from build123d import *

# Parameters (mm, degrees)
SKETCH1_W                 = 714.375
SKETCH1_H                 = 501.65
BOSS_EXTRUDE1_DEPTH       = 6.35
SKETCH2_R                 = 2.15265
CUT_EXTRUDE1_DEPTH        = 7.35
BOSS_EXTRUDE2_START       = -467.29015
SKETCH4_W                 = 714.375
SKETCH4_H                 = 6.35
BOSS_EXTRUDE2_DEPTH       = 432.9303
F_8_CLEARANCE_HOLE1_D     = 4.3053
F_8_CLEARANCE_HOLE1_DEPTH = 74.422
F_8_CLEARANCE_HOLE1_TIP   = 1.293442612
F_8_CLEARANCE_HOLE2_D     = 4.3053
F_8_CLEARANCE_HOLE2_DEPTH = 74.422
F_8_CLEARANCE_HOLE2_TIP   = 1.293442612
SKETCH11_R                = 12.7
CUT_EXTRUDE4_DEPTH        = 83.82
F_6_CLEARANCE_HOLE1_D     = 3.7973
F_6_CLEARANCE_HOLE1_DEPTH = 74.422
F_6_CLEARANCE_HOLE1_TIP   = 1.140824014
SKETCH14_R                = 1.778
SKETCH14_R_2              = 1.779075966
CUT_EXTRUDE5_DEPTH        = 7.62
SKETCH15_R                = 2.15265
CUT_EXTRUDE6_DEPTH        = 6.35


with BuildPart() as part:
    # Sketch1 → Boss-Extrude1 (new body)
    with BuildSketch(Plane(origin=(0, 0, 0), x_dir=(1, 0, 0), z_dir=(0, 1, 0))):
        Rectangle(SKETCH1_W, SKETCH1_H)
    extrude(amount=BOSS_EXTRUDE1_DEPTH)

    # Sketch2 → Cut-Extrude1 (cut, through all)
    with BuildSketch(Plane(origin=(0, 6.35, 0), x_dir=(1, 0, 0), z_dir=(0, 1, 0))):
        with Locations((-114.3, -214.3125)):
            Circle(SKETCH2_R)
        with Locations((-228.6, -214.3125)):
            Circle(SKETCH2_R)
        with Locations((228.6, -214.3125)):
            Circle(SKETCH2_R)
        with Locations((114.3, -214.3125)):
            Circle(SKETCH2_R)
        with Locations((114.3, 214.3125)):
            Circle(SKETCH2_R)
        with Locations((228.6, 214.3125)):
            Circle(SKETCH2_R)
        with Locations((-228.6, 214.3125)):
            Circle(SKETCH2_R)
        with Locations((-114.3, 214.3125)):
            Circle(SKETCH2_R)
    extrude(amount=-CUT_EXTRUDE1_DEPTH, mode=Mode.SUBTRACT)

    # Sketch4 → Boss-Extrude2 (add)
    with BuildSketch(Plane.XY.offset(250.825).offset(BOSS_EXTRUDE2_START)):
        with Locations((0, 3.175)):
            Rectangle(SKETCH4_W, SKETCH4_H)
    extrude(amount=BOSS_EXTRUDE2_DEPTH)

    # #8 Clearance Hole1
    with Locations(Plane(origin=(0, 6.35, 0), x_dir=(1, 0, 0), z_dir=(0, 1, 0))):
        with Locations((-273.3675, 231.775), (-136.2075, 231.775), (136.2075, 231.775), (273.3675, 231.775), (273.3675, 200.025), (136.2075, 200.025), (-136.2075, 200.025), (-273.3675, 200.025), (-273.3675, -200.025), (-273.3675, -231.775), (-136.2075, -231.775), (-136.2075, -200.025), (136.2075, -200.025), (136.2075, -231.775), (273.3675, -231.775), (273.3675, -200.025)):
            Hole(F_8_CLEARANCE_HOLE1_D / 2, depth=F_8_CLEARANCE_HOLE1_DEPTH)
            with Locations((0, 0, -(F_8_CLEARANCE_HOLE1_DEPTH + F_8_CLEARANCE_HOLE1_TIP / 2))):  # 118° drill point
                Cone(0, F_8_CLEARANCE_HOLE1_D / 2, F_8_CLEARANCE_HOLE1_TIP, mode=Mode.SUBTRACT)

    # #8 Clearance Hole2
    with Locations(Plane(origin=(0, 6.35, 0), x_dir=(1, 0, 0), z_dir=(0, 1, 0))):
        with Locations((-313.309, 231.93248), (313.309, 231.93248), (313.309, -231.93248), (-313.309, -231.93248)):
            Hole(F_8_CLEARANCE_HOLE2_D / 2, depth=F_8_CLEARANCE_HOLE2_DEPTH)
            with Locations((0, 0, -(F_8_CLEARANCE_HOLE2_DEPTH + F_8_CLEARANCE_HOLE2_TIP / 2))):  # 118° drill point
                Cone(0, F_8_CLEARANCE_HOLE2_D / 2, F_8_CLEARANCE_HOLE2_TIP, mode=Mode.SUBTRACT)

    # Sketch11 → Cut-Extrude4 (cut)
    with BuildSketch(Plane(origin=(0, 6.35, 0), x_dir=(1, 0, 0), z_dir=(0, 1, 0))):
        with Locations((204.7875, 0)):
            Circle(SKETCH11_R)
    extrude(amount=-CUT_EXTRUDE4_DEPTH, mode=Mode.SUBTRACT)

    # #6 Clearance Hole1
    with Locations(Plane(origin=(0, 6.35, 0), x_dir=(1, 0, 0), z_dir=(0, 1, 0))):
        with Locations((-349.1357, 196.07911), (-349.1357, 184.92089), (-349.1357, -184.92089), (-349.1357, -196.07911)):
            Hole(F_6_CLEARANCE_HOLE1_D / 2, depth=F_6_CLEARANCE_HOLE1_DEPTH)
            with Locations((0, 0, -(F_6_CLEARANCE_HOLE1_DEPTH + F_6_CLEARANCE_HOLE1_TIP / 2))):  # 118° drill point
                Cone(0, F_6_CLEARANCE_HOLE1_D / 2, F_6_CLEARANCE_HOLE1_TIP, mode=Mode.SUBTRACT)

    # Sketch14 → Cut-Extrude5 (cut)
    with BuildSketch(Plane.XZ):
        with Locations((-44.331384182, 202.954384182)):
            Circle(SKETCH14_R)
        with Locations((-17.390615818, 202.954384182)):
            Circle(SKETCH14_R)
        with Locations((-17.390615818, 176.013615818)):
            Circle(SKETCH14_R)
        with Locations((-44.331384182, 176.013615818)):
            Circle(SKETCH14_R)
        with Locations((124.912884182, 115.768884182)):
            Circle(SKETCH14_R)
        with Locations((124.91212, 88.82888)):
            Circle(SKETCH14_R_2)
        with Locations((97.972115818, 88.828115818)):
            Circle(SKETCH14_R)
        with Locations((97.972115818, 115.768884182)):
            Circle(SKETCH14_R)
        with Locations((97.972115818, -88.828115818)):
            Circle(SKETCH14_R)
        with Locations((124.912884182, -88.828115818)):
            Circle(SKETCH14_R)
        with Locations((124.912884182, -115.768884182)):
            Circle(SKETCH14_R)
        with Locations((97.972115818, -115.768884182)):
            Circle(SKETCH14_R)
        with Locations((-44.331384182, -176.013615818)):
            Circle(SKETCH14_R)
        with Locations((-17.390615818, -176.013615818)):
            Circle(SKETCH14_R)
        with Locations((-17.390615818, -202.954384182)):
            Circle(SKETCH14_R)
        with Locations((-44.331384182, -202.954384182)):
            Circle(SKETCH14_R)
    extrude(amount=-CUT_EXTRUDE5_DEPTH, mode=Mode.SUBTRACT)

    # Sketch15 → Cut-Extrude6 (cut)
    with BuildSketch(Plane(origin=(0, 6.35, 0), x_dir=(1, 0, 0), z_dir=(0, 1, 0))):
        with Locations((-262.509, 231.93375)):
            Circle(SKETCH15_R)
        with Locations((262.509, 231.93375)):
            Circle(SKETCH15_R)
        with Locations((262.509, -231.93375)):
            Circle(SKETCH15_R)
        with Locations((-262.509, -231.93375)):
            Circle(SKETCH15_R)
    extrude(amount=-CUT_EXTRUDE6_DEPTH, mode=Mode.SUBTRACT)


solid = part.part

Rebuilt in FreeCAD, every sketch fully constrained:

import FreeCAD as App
import Part
import Sketcher
Q = App.Units.Quantity


def add_polygon(sketch, points):
    """Adds a closed chain of lines whose ends are joined by coincident constraints."""
    first, n = sketch.GeometryCount, len(points)
    for a, b in zip(points, points[1:] + points[:1]):
        sketch.addGeometry(Part.LineSegment(App.Vector(*a, 0), App.Vector(*b, 0)), False)
    for i in range(n):
        sketch.addConstraint(Sketcher.Constraint("Coincident", first + i, 2, first + (i + 1) % n, 1))

doc = App.newDocument("Part")
params = doc.addObject("Spreadsheet::Sheet", "Params")
for row, (alias, value) in enumerate([
    ("sketch1_height", "19.75 in"),
    ("sketch1_width", "28.125 in"),
    ("pad1_length", "0.25 in"),
    ("sketch3_height", "0.25 in"),
    ("sketch3_width", "28.125 in"),
    ("pad2_length", "17.0445 in"),
    ("hole_diameter", "0.1695 in"),
    ("hole_depth", "2.93 in"),
    ("hole2_diameter", "0.1695 in"),
    ("hole2_depth", "2.93 in"),
    ("sketch6_diameter", "1 in"),
    ("pocket2_length", "3.3 in"),
    ("hole3_diameter", "0.1495 in"),
    ("hole3_depth", "2.93 in"),
    ("sketch8_diameter", "0.14 in"),
    ("pocket3_length", "0.3 in"),
    ("pocket4_length", "0.25 in"),
], start=1):
    params.set(f"A{row}", alias)
    params.set(f"B{row}", "=" + value)
    params.setAlias(f"B{row}", alias)

body = doc.addObject("PartDesign::Body", "Body")

sketch1 = doc.addObject("Sketcher::SketchObject", "Sketch")
body.addObject(sketch1)
sketch1.AttachmentSupport = (doc.XZ_Plane, [""])
sketch1.MapMode = "FlatFace"
add_polygon(sketch1, [(-357, -251), (-357, 251), (357, 251), (357, -251)])
sketch1.addConstraint([
    Sketcher.Constraint("Vertical", 0),
    Sketcher.Constraint("Horizontal", 1),
    Sketcher.Constraint("Vertical", 2),
    Sketcher.Constraint("Horizontal", 3),
    Sketcher.Constraint("Symmetric", 0, 2, 2, 2, -1, 1),
    Sketcher.Constraint("DistanceY", 0, 1, 0, 2, Q("19.75 in")),
    Sketcher.Constraint("DistanceX", 1, 1, 1, 2, Q("28.125 in")),
])
sketch1.setExpression("Constraints[9]", "Params.sketch1_height")
sketch1.setExpression("Constraints[10]", "Params.sketch1_width")
pad1 = doc.addObject("PartDesign::Pad", "Pad")
body.addObject(pad1)
pad1.Profile = sketch1
pad1.setExpression("Length", "Params.pad1_length")
pad1.Reversed = True

sketch2 = doc.addObject("Sketcher::SketchObject", "Sketch001")
body.addObject(sketch2)
sketch2.AttachmentSupport = (doc.XZ_Plane, [""])
sketch2.MapMode = "FlatFace"
sketch2.AttachmentOffset = App.Placement(App.Vector(0, 0, -0.25 * 25.4), App.Rotation())
sketch2.addGeometry([
    Part.Circle(App.Vector(-114.3, 214.3, 0), App.Vector(0, 0, 1), 2.2),
    Part.Circle(App.Vector(-228.6, 214.3, 0), App.Vector(0, 0, 1), 2.2),
    Part.Circle(App.Vector(228.6, 214.3, 0), App.Vector(0, 0, 1), 2.2),
    Part.Circle(App.Vector(114.3, 214.3, 0), App.Vector(0, 0, 1), 2.2),
    Part.Circle(App.Vector(114.3, -214.3, 0), App.Vector(0, 0, 1), 2.2),
    Part.Circle(App.Vector(228.6, -214.3, 0), App.Vector(0, 0, 1), 2.2),
    Part.Circle(App.Vector(-228.6, -214.3, 0), App.Vector(0, 0, 1), 2.2),
    Part.Circle(App.Vector(-114.3, -214.3, 0), App.Vector(0, 0, 1), 2.2),
], False)
sketch2.addConstraint([
    Sketcher.Constraint("Equal", 0, 1),
    Sketcher.Constraint("Equal", 1, 2),
    Sketcher.Constraint("Equal", 2, 3),
    Sketcher.Constraint("Equal", 3, 4),
    Sketcher.Constraint("Equal", 4, 5),
    Sketcher.Constraint("Equal", 5, 6),
    Sketcher.Constraint("Equal", 6, 7),
    Sketcher.Constraint("Symmetric", 0, 3, 4, 3, -1, 1),
    Sketcher.Constraint("Symmetric", 1, 3, 5, 3, -1, 1),
    Sketcher.Constraint("Symmetric", 2, 3, 6, 3, -1, 1),
    Sketcher.Constraint("Symmetric", 3, 3, 7, 3, -1, 1),
    Sketcher.Constraint("Symmetric", 1, 3, 2, 3, -2),
    Sketcher.Constraint("Symmetric", 0, 3, 3, 3, -2),
    Sketcher.Constraint("Horizontal", 0, 3, 1, 3),
    Sketcher.Constraint("DistanceX", 1, 3, -1, 1, Q("9 in")),
    Sketcher.Constraint("DistanceX", 0, 3, 3, 3, Q("9 in")),
    Sketcher.Constraint("Diameter", 0, Q("0.1695 in")),
    Sketcher.Constraint("DistanceY", -1, 1, 0, 3, Q("8.4375 in")),
])
pocket1 = doc.addObject("PartDesign::Pocket", "Pocket")
body.addObject(pocket1)
pocket1.Profile = sketch2
pocket1.Type = "ThroughAll"
pocket1.Reversed = True

sketch3 = doc.addObject("Sketcher::SketchObject", "Sketch002")
body.addObject(sketch3)
sketch3.AttachmentSupport = (doc.XY_Plane, [""])
sketch3.MapMode = "FlatFace"
sketch3.AttachmentOffset = App.Placement(App.Vector(0, 0, -216.46515), App.Rotation())
add_polygon(sketch3, [(-357, 6), (-357, 0), (357, 0), (357, 6)])
sketch3.addConstraint([
    Sketcher.Constraint("Vertical", 0),
    Sketcher.Constraint("Horizontal", 1),
    Sketcher.Constraint("Vertical", 2),
    Sketcher.Constraint("Horizontal", 3),
    Sketcher.Constraint("Symmetric", 0, 2, 1, 2, -1, 1),
    Sketcher.Constraint("DistanceY", 0, 2, 0, 1, Q("0.25 in")),
    Sketcher.Constraint("DistanceX", 1, 1, 1, 2, Q("28.125 in")),
])
sketch3.setExpression("Constraints[9]", "Params.sketch3_height")
sketch3.setExpression("Constraints[10]", "Params.sketch3_width")
pad2 = doc.addObject("PartDesign::Pad", "Pad001")
body.addObject(pad2)
pad2.Profile = sketch3
pad2.setExpression("Length", "Params.pad2_length")

sketch4 = doc.addObject("Sketcher::SketchObject", "Sketch003")
body.addObject(sketch4)
sketch4.AttachmentSupport = (doc.XZ_Plane, [""])
sketch4.MapMode = "FlatFace"
sketch4.AttachmentOffset = App.Placement(App.Vector(0, 0, -0.25 * 25.4), App.Rotation())
sketch4.addGeometry([
    Part.Circle(App.Vector(-273.4, -231.8, 0), App.Vector(0, 0, 1), 2.2),
    Part.Circle(App.Vector(-136.2, -231.8, 0), App.Vector(0, 0, 1), 2.2),
    Part.Circle(App.Vector(136.2, -231.8, 0), App.Vector(0, 0, 1), 2.2),
    Part.Circle(App.Vector(273.4, -231.8, 0), App.Vector(0, 0, 1), 2.2),
    Part.Circle(App.Vector(273.4, -200, 0), App.Vector(0, 0, 1), 2.2),
    Part.Circle(App.Vector(136.2, -200, 0), App.Vector(0, 0, 1), 2.2),
    Part.Circle(App.Vector(-136.2, -200, 0), App.Vector(0, 0, 1), 2.2),
    Part.Circle(App.Vector(-273.4, -200, 0), App.Vector(0, 0, 1), 2.2),
    Part.Circle(App.Vector(-273.4, 200, 0), App.Vector(0, 0, 1), 2.2),
    Part.Circle(App.Vector(-273.4, 231.8, 0), App.Vector(0, 0, 1), 2.2),
    Part.Circle(App.Vector(-136.2, 231.8, 0), App.Vector(0, 0, 1), 2.2),
    Part.Circle(App.Vector(-136.2, 200, 0), App.Vector(0, 0, 1), 2.2),
    Part.Circle(App.Vector(136.2, 200, 0), App.Vector(0, 0, 1), 2.2),
    Part.Circle(App.Vector(136.2, 231.8, 0), App.Vector(0, 0, 1), 2.2),
    Part.Circle(App.Vector(273.4, 231.8, 0), App.Vector(0, 0, 1), 2.2),
    Part.Circle(App.Vector(273.4, 200, 0), App.Vector(0, 0, 1), 2.2),
], False)
sketch4.addConstraint([
    Sketcher.Constraint("Equal", 0, 1),
    Sketcher.Constraint("Equal", 1, 2),
    Sketcher.Constraint("Equal", 2, 3),
    Sketcher.Constraint("Equal", 3, 4),
    Sketcher.Constraint("Equal", 4, 5),
    Sketcher.Constraint("Equal", 5, 6),
    Sketcher.Constraint("Equal", 6, 7),
    Sketcher.Constraint("Equal", 7, 8),
    Sketcher.Constraint("Equal", 8, 9),
    Sketcher.Constraint("Equal", 9, 10),
    Sketcher.Constraint("Equal", 10, 11),
    Sketcher.Constraint("Equal", 11, 12),
    Sketcher.Constraint("Equal", 12, 13),
    Sketcher.Constraint("Equal", 13, 14),
    Sketcher.Constraint("Equal", 14, 15),
    Sketcher.Constraint("Symmetric", 4, 3, 8, 3, -1, 1),
    Sketcher.Constraint("Symmetric", 3, 3, 9, 3, -1, 1),
    Sketcher.Constraint("Symmetric", 2, 3, 10, 3, -1, 1),
    Sketcher.Constraint("Symmetric", 5, 3, 11, 3, -1, 1),
    Sketcher.Constraint("Symmetric", 6, 3, 12, 3, -1, 1),
    Sketcher.Constraint("Symmetric", 1, 3, 13, 3, -1, 1),
    Sketcher.Constraint("Symmetric", 0, 3, 14, 3, -1, 1),
    Sketcher.Constraint("Symmetric", 7, 3, 15, 3, -1, 1),
    Sketcher.Constraint("Symmetric", 1, 3, 2, 3, -2),
    Sketcher.Constraint("Symmetric", 0, 3, 3, 3, -2),
    Sketcher.Constraint("Symmetric", 5, 3, 6, 3, -2),
    Sketcher.Constraint("Symmetric", 4, 3, 7, 3, -2),
    Sketcher.Constraint("Horizontal", 0, 3, 1, 3),
    Sketcher.Constraint("Horizontal", 4, 3, 5, 3),
    Sketcher.Constraint("Vertical", 3, 3, 4, 3),
    Sketcher.Constraint("Vertical", 2, 3, 5, 3),
    Sketcher.Constraint("DistanceY", 0, 3, 8, 3, Q("17 in")),
    Sketcher.Constraint("Diameter", 0, Q("0.1695 in")),
    Sketcher.Constraint("DistanceX", 0, 3, 1, 3, Q("5.4 in")),
    Sketcher.Constraint("DistanceY", 3, 3, 4, 3, Q("1.25 in")),
    Sketcher.Constraint("DistanceX", 1, 3, 2, 3, Q("10.725 in")),
])
doc.recompute()
hole = doc.addObject("PartDesign::Hole", "Hole")
body.addObject(hole)
hole.Profile = sketch4
hole.ThreadType = "None"
hole.setExpression("Diameter", "Params.hole_diameter")
hole.DepthType = "Dimension"
hole.setExpression("Depth", "Params.hole_depth")
hole.DrillPoint = "Angled"
hole.DrillPointAngle = 118
hole.Reversed = True

sketch5 = doc.addObject("Sketcher::SketchObject", "Sketch004")
body.addObject(sketch5)
sketch5.AttachmentSupport = (doc.XZ_Plane, [""])
sketch5.MapMode = "FlatFace"
sketch5.AttachmentOffset = App.Placement(App.Vector(0, 0, -0.25 * 25.4), App.Rotation())
sketch5.addGeometry([
    Part.Circle(App.Vector(-313.3, -231.9, 0), App.Vector(0, 0, 1), 2.2),
    Part.Circle(App.Vector(313.3, -231.9, 0), App.Vector(0, 0, 1), 2.2),
    Part.Circle(App.Vector(313.3, 231.9, 0), App.Vector(0, 0, 1), 2.2),
    Part.Circle(App.Vector(-313.3, 231.9, 0), App.Vector(0, 0, 1), 2.2),
], False)
sketch5.addConstraint([
    Sketcher.Constraint("Equal", 0, 1),
    Sketcher.Constraint("Equal", 1, 2),
    Sketcher.Constraint("Equal", 2, 3),
    Sketcher.Constraint("Symmetric", 0, 3, 2, 3, -1, 1),
    Sketcher.Constraint("Symmetric", 1, 3, 3, 3, -1, 1),
    Sketcher.Constraint("Symmetric", 0, 3, 1, 3, -2),
    Sketcher.Constraint("Diameter", 0, Q("0.1695 in")),
    Sketcher.Constraint("DistanceX", 0, 3, 1, 3, Q("24.67 in")),
    Sketcher.Constraint("DistanceY", 0, 3, -1, 1, Q("9.1312 in")),
])
doc.recompute()
hole2 = doc.addObject("PartDesign::Hole", "Hole001")
body.addObject(hole2)
hole2.Profile = sketch5
hole2.ThreadType = "None"
hole2.setExpression("Diameter", "Params.hole2_diameter")
hole2.DepthType = "Dimension"
hole2.setExpression("Depth", "Params.hole2_depth")
hole2.DrillPoint = "Angled"
hole2.DrillPointAngle = 118
hole2.Reversed = True

sketch6 = doc.addObject("Sketcher::SketchObject", "Sketch005")
body.addObject(sketch6)
sketch6.AttachmentSupport = (doc.XZ_Plane, [""])
sketch6.MapMode = "FlatFace"
sketch6.AttachmentOffset = App.Placement(App.Vector(0, 0, -0.25 * 25.4), App.Rotation())
sketch6.addGeometry(Part.Circle(App.Vector(205, 0, 0), App.Vector(0, 0, 1), 13), False)
sketch6.addConstraint([
    Sketcher.Constraint("PointOnObject", 0, 3, -1),
    Sketcher.Constraint("Diameter", 0, Q("1 in")),
    Sketcher.Constraint("DistanceX", -1, 1, 0, 3, Q("8.0625 in")),
])
sketch6.setExpression("Constraints[1]", "Params.sketch6_diameter")
pocket2 = doc.addObject("PartDesign::Pocket", "Pocket001")
body.addObject(pocket2)
pocket2.Profile = sketch6
pocket2.setExpression("Length", "Params.pocket2_length")
pocket2.Reversed = True

sketch7 = doc.addObject("Sketcher::SketchObject", "Sketch006")
body.addObject(sketch7)
sketch7.AttachmentSupport = (doc.XZ_Plane, [""])
sketch7.MapMode = "FlatFace"
sketch7.AttachmentOffset = App.Placement(App.Vector(0, 0, -0.25 * 25.4), App.Rotation())
sketch7.addGeometry([
    Part.Circle(App.Vector(-349.1, -196.1, 0), App.Vector(0, 0, 1), 1.9),
    Part.Circle(App.Vector(-349.1, -184.9, 0), App.Vector(0, 0, 1), 1.9),
    Part.Circle(App.Vector(-349.1, 184.9, 0), App.Vector(0, 0, 1), 1.9),
    Part.Circle(App.Vector(-349.1, 196.1, 0), App.Vector(0, 0, 1), 1.9),
], False)
sketch7.addConstraint([
    Sketcher.Constraint("Equal", 0, 1),
    Sketcher.Constraint("Equal", 1, 2),
    Sketcher.Constraint("Equal", 2, 3),
    Sketcher.Constraint("Symmetric", 1, 3, 2, 3, -1),
    Sketcher.Constraint("Symmetric", 0, 3, 3, 3, -1),
    Sketcher.Constraint("Vertical", 0, 3, 1, 3),
    Sketcher.Constraint("DistanceY", 0, 3, 2, 3, Q("15 in")),
    Sketcher.Constraint("Diameter", 0, Q("0.1495 in")),
    Sketcher.Constraint("DistanceX", 0, 3, -1, 1, Q("13.7455 in")),
    Sketcher.Constraint("DistanceY", 0, 3, 1, 3, Q("0.4393 in")),
])
doc.recompute()
hole3 = doc.addObject("PartDesign::Hole", "Hole002")
body.addObject(hole3)
hole3.Profile = sketch7
hole3.ThreadType = "None"
hole3.setExpression("Diameter", "Params.hole3_diameter")
hole3.DepthType = "Dimension"
hole3.setExpression("Depth", "Params.hole3_depth")
hole3.DrillPoint = "Angled"
hole3.DrillPointAngle = 118
hole3.Reversed = True

sketch8 = doc.addObject("Sketcher::SketchObject", "Sketch007")
body.addObject(sketch8)
sketch8.AttachmentSupport = (doc.XZ_Plane, [""])
sketch8.MapMode = "FlatFace"
sketch8.addGeometry([
    Part.Circle(App.Vector(-44.3, 203, 0), App.Vector(0, 0, 1), 1.8),
    Part.Circle(App.Vector(-17.4, 203, 0), App.Vector(0, 0, 1), 1.8),
    Part.Circle(App.Vector(-17.4, 176, 0), App.Vector(0, 0, 1), 1.8),
    Part.Circle(App.Vector(-44.3, 176, 0), App.Vector(0, 0, 1), 1.8),
    Part.Circle(App.Vector(124.9, 115.8, 0), App.Vector(0, 0, 1), 1.8),
    Part.Circle(App.Vector(124.9, 88.8, 0), App.Vector(0, 0, 1), 1.8),
    Part.Circle(App.Vector(98, 88.8, 0), App.Vector(0, 0, 1), 1.8),
    Part.Circle(App.Vector(98, 115.8, 0), App.Vector(0, 0, 1), 1.8),
    Part.Circle(App.Vector(98, -88.8, 0), App.Vector(0, 0, 1), 1.8),
    Part.Circle(App.Vector(124.9, -88.8, 0), App.Vector(0, 0, 1), 1.8),
    Part.Circle(App.Vector(124.9, -115.8, 0), App.Vector(0, 0, 1), 1.8),
    Part.Circle(App.Vector(98, -115.8, 0), App.Vector(0, 0, 1), 1.8),
    Part.Circle(App.Vector(-44.3, -176, 0), App.Vector(0, 0, 1), 1.8),
    Part.Circle(App.Vector(-17.4, -176, 0), App.Vector(0, 0, 1), 1.8),
    Part.Circle(App.Vector(-17.4, -203, 0), App.Vector(0, 0, 1), 1.8),
    Part.Circle(App.Vector(-44.3, -203, 0), App.Vector(0, 0, 1), 1.8),
], False)
sketch8.addConstraint([
    Sketcher.Constraint("Equal", 0, 1),
    Sketcher.Constraint("Equal", 1, 2),
    Sketcher.Constraint("Equal", 2, 3),
    Sketcher.Constraint("Equal", 3, 4),
    Sketcher.Constraint("Equal", 4, 6),
    Sketcher.Constraint("Equal", 6, 7),
    Sketcher.Constraint("Equal", 7, 8),
    Sketcher.Constraint("Equal", 8, 9),
    Sketcher.Constraint("Equal", 9, 10),
    Sketcher.Constraint("Equal", 10, 11),
    Sketcher.Constraint("Equal", 11, 12),
    Sketcher.Constraint("Equal", 12, 13),
    Sketcher.Constraint("Equal", 13, 14),
    Sketcher.Constraint("Equal", 14, 15),
    Sketcher.Constraint("Symmetric", 6, 3, 8, 3, -1),
    Sketcher.Constraint("Symmetric", 4, 3, 10, 3, -1),
    Sketcher.Constraint("Symmetric", 7, 3, 11, 3, -1),
    Sketcher.Constraint("Symmetric", 3, 3, 12, 3, -1),
    Sketcher.Constraint("Symmetric", 2, 3, 13, 3, -1),
    Sketcher.Constraint("Symmetric", 1, 3, 14, 3, -1),
    Sketcher.Constraint("Symmetric", 0, 3, 15, 3, -1),
    Sketcher.Constraint("Horizontal", 0, 3, 1, 3),
    Sketcher.Constraint("Horizontal", 2, 3, 3, 3),
    Sketcher.Constraint("Horizontal", 4, 3, 7, 3),
    Sketcher.Constraint("Horizontal", 8, 3, 9, 3),
    Sketcher.Constraint("Vertical", 1, 3, 2, 3),
    Sketcher.Constraint("Vertical", 0, 3, 3, 3),
    Sketcher.Constraint("Vertical", 6, 3, 7, 3),
    Sketcher.Constraint("Vertical", 4, 3, 9, 3),
    Sketcher.Constraint("Diameter", 0, Q("0.14 in")),
    Sketcher.Constraint("Diameter", 5, 3.558152),
    Sketcher.Constraint("DistanceY", 8, 3, 7, 3, Q("8.055 in")),
    Sketcher.Constraint("DistanceX", -1, 1, 5, 3, Q("4.9178 in")),
    Sketcher.Constraint("DistanceY", -1, 1, 5, 3, Q("3.4972 in")),
    Sketcher.Constraint("DistanceX", 2, 3, 4, 3, Q("5.6025 in")),
    Sketcher.Constraint("DistanceY", 4, 3, 1, 3, Q("3.4325 in")),
    Sketcher.Constraint("DistanceY", 6, 3, 2, 3, Q("3.4325 in")),
    Sketcher.Constraint("DistanceX", 3, 3, 6, 3, Q("5.6025 in")),
    Sketcher.Constraint("DistanceX", 0, 3, 1, 3, 26.940768),
    Sketcher.Constraint("DistanceY", 2, 3, 1, 3, 26.940768),
    Sketcher.Constraint("DistanceX", 0, 3, -1, 1, 44.331384),
])
sketch8.setExpression("Constraints[29]", "Params.sketch8_diameter")
pocket3 = doc.addObject("PartDesign::Pocket", "Pocket002")
body.addObject(pocket3)
pocket3.Profile = sketch8
pocket3.setExpression("Length", "Params.pocket3_length")

sketch9 = doc.addObject("Sketcher::SketchObject", "Sketch008")
body.addObject(sketch9)
sketch9.AttachmentSupport = (doc.XZ_Plane, [""])
sketch9.MapMode = "FlatFace"
sketch9.AttachmentOffset = App.Placement(App.Vector(0, 0, -0.25 * 25.4), App.Rotation())
sketch9.addGeometry([
    Part.Circle(App.Vector(-262.5, -231.9, 0), App.Vector(0, 0, 1), 2.2),
    Part.Circle(App.Vector(262.5, -231.9, 0), App.Vector(0, 0, 1), 2.2),
    Part.Circle(App.Vector(262.5, 231.9, 0), App.Vector(0, 0, 1), 2.2),
    Part.Circle(App.Vector(-262.5, 231.9, 0), App.Vector(0, 0, 1), 2.2),
], False)
sketch9.addConstraint([
    Sketcher.Constraint("Equal", 0, 1),
    Sketcher.Constraint("Equal", 1, 2),
    Sketcher.Constraint("Equal", 2, 3),
    Sketcher.Constraint("Symmetric", 0, 3, 2, 3, -1, 1),
    Sketcher.Constraint("Symmetric", 1, 3, 3, 3, -1, 1),
    Sketcher.Constraint("Symmetric", 0, 3, 1, 3, -2),
    Sketcher.Constraint("Diameter", 0, Q("0.1695 in")),
    Sketcher.Constraint("DistanceX", 0, 3, 1, 3, Q("20.67 in")),
    Sketcher.Constraint("DistanceY", 1, 3, 2, 3, Q("18.2625 in")),
])
pocket4 = doc.addObject("PartDesign::Pocket", "Pocket003")
body.addObject(pocket4)
pocket4.Profile = sketch9
pocket4.setExpression("Length", "Params.pocket4_length")
pocket4.Reversed = True

doc.recompute()
